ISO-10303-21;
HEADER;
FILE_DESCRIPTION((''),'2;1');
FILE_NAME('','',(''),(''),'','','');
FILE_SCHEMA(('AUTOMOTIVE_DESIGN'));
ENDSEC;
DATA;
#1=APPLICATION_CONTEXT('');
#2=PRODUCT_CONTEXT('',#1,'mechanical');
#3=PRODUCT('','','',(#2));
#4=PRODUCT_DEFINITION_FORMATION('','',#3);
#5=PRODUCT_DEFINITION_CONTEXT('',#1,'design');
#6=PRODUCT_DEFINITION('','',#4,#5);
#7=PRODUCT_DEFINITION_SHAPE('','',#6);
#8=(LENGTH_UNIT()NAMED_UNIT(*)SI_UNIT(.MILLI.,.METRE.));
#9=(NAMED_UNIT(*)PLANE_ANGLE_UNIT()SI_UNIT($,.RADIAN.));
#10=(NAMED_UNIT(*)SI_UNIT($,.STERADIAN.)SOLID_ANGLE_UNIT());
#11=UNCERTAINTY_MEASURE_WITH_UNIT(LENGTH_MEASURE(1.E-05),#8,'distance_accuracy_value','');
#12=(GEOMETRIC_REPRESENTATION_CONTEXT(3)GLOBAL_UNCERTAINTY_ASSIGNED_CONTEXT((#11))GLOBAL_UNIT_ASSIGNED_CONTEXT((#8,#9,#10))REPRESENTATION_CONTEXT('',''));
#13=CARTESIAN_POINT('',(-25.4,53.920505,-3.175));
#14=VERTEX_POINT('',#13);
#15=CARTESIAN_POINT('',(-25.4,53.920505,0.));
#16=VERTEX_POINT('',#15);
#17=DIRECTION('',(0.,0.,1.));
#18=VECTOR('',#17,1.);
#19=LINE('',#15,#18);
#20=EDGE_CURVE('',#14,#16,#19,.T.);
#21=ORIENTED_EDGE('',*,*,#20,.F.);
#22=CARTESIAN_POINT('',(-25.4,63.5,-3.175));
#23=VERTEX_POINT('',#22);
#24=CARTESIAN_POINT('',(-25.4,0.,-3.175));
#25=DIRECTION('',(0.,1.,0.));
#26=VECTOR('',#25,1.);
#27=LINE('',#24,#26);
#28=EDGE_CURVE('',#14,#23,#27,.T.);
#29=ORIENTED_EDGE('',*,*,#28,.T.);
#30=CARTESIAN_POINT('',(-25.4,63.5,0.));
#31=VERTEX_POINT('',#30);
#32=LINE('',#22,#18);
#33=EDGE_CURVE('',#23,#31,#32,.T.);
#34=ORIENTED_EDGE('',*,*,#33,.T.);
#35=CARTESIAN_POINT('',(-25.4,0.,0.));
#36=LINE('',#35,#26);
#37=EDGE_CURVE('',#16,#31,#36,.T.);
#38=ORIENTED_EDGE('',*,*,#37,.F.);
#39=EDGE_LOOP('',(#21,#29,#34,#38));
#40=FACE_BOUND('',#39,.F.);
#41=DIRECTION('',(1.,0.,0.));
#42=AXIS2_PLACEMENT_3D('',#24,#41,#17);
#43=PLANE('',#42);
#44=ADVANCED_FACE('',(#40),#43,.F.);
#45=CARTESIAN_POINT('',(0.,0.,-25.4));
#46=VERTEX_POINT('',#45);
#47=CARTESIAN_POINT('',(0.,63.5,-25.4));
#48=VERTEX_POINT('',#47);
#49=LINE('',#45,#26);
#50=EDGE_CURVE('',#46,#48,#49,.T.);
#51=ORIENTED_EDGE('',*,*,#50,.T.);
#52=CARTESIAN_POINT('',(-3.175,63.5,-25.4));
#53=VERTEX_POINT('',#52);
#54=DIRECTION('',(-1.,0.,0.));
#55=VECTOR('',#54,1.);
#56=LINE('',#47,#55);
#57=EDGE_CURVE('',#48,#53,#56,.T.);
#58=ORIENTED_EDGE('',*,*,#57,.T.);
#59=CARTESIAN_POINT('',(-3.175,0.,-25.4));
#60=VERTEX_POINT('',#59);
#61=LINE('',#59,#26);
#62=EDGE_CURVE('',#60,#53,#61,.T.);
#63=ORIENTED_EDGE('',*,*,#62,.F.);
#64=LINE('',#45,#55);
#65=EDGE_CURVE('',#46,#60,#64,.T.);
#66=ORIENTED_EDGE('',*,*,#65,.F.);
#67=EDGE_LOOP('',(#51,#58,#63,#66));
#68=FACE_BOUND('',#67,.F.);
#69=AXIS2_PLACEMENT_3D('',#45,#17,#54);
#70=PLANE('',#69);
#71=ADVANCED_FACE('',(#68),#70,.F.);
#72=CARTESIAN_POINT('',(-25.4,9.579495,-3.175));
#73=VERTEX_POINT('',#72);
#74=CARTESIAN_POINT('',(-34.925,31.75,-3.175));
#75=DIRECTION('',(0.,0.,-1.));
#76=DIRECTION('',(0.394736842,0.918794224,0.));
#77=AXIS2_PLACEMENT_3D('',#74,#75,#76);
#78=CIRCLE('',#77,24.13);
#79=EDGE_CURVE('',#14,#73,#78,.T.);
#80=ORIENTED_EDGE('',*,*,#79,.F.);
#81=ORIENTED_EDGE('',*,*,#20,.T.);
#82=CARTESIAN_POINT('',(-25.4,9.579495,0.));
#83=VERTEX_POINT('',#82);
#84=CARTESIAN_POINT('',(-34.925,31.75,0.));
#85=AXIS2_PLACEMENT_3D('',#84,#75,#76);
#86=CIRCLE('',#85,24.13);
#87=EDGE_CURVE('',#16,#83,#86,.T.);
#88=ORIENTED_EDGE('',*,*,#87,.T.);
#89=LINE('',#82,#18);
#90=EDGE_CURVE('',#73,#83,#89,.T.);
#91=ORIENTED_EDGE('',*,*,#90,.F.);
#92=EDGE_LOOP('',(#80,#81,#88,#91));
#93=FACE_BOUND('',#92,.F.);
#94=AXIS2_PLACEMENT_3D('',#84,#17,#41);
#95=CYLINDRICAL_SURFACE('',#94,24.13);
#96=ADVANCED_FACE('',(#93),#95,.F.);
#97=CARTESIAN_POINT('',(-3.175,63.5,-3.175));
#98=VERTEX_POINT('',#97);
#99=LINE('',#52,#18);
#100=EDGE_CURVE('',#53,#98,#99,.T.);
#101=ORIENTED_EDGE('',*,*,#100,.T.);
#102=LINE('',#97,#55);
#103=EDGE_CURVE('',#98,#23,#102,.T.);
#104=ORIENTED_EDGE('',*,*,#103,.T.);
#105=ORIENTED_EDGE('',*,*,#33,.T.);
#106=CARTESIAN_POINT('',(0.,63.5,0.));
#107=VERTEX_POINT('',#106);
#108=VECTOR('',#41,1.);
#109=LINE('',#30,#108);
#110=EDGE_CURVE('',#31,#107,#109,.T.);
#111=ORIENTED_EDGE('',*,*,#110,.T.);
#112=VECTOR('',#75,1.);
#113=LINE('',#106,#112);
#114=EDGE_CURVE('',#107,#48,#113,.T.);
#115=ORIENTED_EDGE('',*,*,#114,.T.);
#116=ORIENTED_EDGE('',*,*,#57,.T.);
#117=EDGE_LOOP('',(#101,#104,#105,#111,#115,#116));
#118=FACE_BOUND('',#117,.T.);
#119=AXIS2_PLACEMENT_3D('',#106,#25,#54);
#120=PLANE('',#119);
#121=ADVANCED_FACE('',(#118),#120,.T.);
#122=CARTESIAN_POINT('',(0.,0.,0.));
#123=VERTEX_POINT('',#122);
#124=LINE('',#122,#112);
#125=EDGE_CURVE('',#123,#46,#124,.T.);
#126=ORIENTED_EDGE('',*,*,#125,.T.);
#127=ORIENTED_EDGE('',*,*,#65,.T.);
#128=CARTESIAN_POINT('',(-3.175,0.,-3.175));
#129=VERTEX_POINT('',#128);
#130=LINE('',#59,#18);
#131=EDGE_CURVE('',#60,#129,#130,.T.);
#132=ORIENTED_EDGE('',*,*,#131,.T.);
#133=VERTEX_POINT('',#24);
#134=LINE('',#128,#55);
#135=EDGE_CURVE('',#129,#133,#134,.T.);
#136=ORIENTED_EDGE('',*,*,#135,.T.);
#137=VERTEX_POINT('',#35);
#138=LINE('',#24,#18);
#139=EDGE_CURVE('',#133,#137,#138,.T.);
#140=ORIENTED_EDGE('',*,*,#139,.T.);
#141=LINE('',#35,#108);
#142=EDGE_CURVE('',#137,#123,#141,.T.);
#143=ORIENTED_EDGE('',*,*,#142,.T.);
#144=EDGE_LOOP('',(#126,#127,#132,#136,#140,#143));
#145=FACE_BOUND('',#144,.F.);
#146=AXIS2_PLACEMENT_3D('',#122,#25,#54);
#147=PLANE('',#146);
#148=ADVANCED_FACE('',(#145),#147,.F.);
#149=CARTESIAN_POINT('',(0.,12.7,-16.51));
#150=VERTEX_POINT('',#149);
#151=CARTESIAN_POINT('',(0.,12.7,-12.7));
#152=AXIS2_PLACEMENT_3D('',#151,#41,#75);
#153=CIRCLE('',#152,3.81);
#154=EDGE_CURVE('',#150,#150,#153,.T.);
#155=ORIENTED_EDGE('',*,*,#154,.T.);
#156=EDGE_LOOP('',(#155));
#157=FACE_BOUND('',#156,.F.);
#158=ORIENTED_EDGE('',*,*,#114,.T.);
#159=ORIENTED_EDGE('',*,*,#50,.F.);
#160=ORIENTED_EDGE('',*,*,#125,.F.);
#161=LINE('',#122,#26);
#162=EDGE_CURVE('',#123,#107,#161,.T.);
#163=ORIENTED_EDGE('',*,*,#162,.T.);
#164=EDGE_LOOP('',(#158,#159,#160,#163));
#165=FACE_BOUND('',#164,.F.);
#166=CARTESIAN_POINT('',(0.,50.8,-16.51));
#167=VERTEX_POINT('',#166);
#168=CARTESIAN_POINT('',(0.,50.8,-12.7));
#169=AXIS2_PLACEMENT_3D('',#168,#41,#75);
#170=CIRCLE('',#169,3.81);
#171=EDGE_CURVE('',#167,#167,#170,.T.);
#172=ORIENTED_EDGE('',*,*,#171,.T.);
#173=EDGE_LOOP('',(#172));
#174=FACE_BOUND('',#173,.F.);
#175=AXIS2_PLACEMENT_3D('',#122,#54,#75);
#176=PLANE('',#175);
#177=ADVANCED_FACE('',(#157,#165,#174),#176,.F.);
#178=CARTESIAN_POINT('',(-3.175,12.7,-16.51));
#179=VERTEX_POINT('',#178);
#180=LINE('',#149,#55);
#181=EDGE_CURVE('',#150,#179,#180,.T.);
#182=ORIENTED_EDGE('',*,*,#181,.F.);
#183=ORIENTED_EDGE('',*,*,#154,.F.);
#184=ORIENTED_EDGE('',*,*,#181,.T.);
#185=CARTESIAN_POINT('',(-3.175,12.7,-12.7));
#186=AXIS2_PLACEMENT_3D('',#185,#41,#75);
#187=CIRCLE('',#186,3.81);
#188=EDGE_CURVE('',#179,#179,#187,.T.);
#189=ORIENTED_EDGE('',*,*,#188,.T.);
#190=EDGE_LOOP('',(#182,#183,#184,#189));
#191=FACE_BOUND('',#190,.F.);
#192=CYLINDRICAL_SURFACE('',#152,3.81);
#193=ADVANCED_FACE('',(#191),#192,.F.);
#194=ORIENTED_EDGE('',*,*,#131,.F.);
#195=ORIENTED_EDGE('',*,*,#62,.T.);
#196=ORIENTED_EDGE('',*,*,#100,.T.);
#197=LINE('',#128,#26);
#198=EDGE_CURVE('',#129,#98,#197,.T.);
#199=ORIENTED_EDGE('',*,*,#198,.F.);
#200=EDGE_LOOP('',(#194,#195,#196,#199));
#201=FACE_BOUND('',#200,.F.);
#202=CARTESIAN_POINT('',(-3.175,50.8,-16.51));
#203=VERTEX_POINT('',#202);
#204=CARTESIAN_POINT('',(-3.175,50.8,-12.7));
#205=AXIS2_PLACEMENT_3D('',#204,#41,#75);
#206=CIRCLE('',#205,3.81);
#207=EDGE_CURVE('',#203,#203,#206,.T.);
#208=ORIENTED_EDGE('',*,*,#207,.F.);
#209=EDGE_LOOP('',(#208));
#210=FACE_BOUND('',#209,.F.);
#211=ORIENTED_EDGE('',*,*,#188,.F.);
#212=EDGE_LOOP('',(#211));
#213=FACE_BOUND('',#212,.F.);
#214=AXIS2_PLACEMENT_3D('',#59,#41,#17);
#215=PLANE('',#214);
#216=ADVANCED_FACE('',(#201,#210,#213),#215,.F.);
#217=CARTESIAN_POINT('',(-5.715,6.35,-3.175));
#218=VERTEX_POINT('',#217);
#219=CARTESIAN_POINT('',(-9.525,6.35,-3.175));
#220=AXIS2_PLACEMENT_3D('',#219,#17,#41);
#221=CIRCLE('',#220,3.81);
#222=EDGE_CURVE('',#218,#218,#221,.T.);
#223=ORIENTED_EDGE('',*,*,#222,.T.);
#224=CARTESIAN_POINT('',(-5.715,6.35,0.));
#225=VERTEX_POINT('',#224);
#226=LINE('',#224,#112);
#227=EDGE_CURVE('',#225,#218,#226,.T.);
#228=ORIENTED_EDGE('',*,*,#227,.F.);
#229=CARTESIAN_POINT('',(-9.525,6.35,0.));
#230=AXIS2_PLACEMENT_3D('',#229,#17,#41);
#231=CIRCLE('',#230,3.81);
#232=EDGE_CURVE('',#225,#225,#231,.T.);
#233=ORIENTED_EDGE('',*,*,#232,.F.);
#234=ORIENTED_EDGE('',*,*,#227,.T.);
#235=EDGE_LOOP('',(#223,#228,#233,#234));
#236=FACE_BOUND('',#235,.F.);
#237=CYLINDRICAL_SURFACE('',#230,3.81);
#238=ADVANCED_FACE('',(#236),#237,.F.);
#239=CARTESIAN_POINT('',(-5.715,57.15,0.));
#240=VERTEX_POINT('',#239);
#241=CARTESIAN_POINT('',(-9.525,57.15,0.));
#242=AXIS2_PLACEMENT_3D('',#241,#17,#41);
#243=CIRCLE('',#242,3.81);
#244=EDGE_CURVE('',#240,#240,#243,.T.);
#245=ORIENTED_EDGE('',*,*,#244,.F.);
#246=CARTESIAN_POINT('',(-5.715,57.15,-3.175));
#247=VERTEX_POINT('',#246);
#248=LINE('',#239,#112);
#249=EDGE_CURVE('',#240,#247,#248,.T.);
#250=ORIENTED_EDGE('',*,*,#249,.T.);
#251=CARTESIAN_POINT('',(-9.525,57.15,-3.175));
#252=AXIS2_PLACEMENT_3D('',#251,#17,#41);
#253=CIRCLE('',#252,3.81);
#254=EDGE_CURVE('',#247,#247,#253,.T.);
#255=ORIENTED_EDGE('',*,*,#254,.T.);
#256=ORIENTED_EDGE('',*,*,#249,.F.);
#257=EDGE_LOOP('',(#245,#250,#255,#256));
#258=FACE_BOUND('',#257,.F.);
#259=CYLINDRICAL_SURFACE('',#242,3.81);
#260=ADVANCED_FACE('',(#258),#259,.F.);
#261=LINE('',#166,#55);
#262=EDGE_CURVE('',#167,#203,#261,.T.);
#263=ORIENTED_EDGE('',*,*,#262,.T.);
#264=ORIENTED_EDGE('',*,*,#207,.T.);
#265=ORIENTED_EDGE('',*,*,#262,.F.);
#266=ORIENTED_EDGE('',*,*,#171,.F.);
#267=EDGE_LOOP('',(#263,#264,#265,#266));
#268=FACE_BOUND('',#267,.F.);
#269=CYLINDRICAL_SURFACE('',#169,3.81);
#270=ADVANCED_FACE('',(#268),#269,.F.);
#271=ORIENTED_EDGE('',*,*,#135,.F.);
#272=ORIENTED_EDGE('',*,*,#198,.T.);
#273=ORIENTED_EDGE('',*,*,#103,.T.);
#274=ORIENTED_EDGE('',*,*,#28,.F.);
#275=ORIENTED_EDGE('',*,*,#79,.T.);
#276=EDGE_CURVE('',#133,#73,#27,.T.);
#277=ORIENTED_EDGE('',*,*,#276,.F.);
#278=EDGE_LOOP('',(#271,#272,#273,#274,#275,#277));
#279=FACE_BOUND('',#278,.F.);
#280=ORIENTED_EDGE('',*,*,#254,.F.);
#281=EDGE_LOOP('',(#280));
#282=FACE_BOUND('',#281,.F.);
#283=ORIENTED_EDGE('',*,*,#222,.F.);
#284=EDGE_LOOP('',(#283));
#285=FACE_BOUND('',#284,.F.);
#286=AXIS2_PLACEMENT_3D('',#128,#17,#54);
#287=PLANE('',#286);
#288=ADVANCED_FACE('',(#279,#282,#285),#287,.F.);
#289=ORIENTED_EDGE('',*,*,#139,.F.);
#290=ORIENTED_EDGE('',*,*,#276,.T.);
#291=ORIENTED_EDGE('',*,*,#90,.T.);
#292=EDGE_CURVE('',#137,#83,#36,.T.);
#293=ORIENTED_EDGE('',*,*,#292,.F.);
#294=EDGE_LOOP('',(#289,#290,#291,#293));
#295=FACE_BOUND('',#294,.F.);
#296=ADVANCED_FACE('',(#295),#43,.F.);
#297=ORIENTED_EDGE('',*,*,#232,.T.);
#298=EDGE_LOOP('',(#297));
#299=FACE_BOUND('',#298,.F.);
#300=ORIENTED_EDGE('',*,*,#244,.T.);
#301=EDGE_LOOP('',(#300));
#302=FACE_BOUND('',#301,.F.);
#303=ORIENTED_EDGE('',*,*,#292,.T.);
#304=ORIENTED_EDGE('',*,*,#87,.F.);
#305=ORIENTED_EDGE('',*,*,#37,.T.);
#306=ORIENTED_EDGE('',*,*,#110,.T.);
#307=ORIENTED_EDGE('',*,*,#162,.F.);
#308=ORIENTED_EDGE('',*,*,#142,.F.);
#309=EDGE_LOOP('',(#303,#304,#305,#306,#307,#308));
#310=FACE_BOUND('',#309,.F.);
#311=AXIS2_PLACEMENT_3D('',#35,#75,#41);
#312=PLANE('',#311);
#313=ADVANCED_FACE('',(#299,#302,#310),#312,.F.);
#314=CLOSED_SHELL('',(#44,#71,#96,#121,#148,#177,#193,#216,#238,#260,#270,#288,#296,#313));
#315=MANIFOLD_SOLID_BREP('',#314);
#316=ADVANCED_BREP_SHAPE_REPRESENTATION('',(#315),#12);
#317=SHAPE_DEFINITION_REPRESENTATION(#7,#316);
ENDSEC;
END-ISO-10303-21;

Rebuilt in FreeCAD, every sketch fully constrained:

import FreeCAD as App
import Part
import Sketcher
from FreeCAD import Vector
Q = App.Units.Quantity


def add_polygon(sketch, points):
    """Adds a closed chain of lines whose ends are joined by coincident constraints."""
    first, n = sketch.GeometryCount, len(points)
    for a, b in zip(points, points[1:] + points[:1]):
        sketch.addGeometry(Part.LineSegment(App.Vector(*a, 0), App.Vector(*b, 0)), False)
    for i in range(n):
        sketch.addConstraint(Sketcher.Constraint("Coincident", first + i, 2, first + (i + 1) % n, 1))

doc = App.newDocument("Part")
body = doc.addObject("PartDesign::Body", "Body")

sketch1 = body.newObject("Sketcher::SketchObject", "Sketch")
sketch1.AttachmentSupport = (doc.getObject("XZ_Plane"), [""])
sketch1.MapMode = "FlatFace"
add_polygon(sketch1, [(-25.4, 0), (0, 0), (0, -25.4), (-3.2, -25.4), (-3.2, -3.2), (-25.4, -3.2)])
sketch1.addConstraint([
    Sketcher.Constraint("Horizontal", 0),
    Sketcher.Constraint("Vertical", 1),
    Sketcher.Constraint("Horizontal", 2),
    Sketcher.Constraint("Vertical", 3),
    Sketcher.Constraint("Horizontal", 4),
    Sketcher.Constraint("Vertical", 5),
    Sketcher.Constraint("Coincident", 0, 2, -1, 1),
    Sketcher.Constraint("Equal", 0, 1),
    Sketcher.Constraint("Equal", 4, 3),
    Sketcher.Constraint("DistanceX", 0, 1, 0, 2, Q("1 in")),
    Sketcher.Constraint("DistanceX", 2, 2, 2, 1, Q("0.125 in")),
])
pad1 = body.newObject("PartDesign::Pad", "Pad")
pad1.Profile = sketch1
pad1.Length = Q("2.5 in")
pad1.Reversed = True

sketch2 = body.newObject("Sketcher::SketchObject", "Sketch001")
sketch2.AttachmentSupport = (doc.getObject("XY_Plane"), [""])
sketch2.MapMode = "FlatFace"
sketch2.addGeometry([
    Part.Circle(Vector(-9.5, 57.1, 0), Vector(0, 0, 1), 3.8),
    Part.Circle(Vector(-9.5, 6.3, 0), Vector(0, 0, 1), 3.8),
    Part.Circle(Vector(-34.9, 31.8, 0), Vector(0, 0, 1), 24.1),
], False)
sketch2.addConstraint([
    Sketcher.Constraint("Equal", 0, 1),
    Sketcher.Constraint("Vertical", 0, 3, 1, 3),
    Sketcher.Constraint("Diameter", 0, Q("0.3 in")),
    Sketcher.Constraint("Diameter", 2, Q("1.9 in")),
    Sketcher.Constraint("DistanceY", -1, 1, 1, 3, Q("0.25 in")),
    Sketcher.Constraint("DistanceY", -1, 1, 2, 3, Q("1.25 in")),
    Sketcher.Constraint("DistanceY", 1, 3, 0, 3, Q("2 in")),
    Sketcher.Constraint("DistanceX", 2, 3, 0, 3, Q("1 in")),
    Sketcher.Constraint("DistanceX", 0, 3, -1, 1, Q("0.375 in")),
])
pocket1 = body.newObject("PartDesign::Pocket", "Pocket")
pocket1.Profile = sketch2
pocket1.Length = Q("2.5 in")

sketch3 = body.newObject("Sketcher::SketchObject", "Sketch002")
sketch3.AttachmentSupport = (doc.getObject("YZ_Plane"), [""])
sketch3.MapMode = "FlatFace"
sketch3.addGeometry([
    Part.Circle(Vector(12.7, -12.7, 0), Vector(0, 0, 1), 3.8),
    Part.Circle(Vector(50.8, -12.7, 0), Vector(0, 0, 1), 3.8),
], False)
sketch3.addConstraint([
    Sketcher.Constraint("Equal", 0, 1),
    Sketcher.Constraint("Horizontal", 0, 3, 1, 3),
    Sketcher.Constraint("Diameter", 0, Q("0.3 in")),
    Sketcher.Constraint("DistanceX", -1, 1, 1, 3, Q("2 in")),
    Sketcher.Constraint("DistanceX", -1, 1, 0, 3, Q("0.5 in")),
    Sketcher.Constraint("DistanceY", 0, 3, -1, 1, Q("0.5 in")),
])
pocket2 = body.newObject("PartDesign::Pocket", "Pocket001")
pocket2.Profile = sketch3
pocket2.Length = Q("2.5 in")

doc.recompute()
